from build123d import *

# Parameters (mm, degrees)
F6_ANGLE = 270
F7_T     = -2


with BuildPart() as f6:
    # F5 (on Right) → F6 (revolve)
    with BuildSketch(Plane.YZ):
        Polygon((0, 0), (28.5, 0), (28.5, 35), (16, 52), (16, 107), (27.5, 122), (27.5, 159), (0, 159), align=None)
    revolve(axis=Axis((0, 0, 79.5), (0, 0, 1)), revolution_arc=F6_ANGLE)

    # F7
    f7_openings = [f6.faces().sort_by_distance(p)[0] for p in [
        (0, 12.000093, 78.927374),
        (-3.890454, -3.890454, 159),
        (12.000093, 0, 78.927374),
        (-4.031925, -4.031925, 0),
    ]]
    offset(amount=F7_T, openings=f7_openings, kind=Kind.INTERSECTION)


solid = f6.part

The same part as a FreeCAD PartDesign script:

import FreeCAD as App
import Part
import Sketcher

V = App.Vector
Q = App.Units.Quantity


def faces_at(feature, points):
    """Names of the faces that lie closest to the given points."""
    faces = feature.Shape.Faces
    near = lambda p: min(range(len(faces)), key=lambda i: faces[i].distToShape(Part.Vertex(*p))[0])
    return sorted({f"Face{near(p) + 1}" for p in points})

doc = App.newDocument("Part")
body = doc.addObject("PartDesign::Body", "Body")

# Sketch on YZ plane
sketch1 = body.newObject("Sketcher::SketchObject", "Sketch")
sketch1.AttachmentSupport = (doc.getObject("YZ_Plane"), [""])
sketch1.MapMode = "FlatFace"
sketch1.addGeometry(Part.LineSegment(V(0, 0, 0), V(28.5, 0, 0)), False)
sketch1.addGeometry(Part.LineSegment(V(28.5, 0, 0), V(28.5, 35, 0)), False)
sketch1.addGeometry(Part.LineSegment(V(28.5, 35, 0), V(16, 52, 0)), False)
sketch1.addGeometry(Part.LineSegment(V(16, 52, 0), V(16, 107, 0)), False)
sketch1.addGeometry(Part.LineSegment(V(16, 107, 0), V(27.5, 122, 0)), False)
sketch1.addGeometry(Part.LineSegment(V(27.5, 122, 0), V(27.5, 159, 0)), False)
sketch1.addGeometry(Part.LineSegment(V(27.5, 159, 0), V(0, 159, 0)), False)
sketch1.addGeometry(Part.LineSegment(V(0, 159, 0), V(0, 0, 0)), False)
sketch1.addConstraint(Sketcher.Constraint("Coincident", 0, 2, 1, 1))
sketch1.addConstraint(Sketcher.Constraint("Coincident", 1, 2, 2, 1))
sketch1.addConstraint(Sketcher.Constraint("Coincident", 2, 2, 3, 1))
sketch1.addConstraint(Sketcher.Constraint("Coincident", 3, 2, 4, 1))
sketch1.addConstraint(Sketcher.Constraint("Coincident", 4, 2, 5, 1))
sketch1.addConstraint(Sketcher.Constraint("Coincident", 5, 2, 6, 1))
sketch1.addConstraint(Sketcher.Constraint("Coincident", 6, 2, 7, 1))
sketch1.addConstraint(Sketcher.Constraint("Coincident", 7, 2, 0, 1))
sketch1.addConstraint(Sketcher.Constraint("Horizontal", 0))
sketch1.addConstraint(Sketcher.Constraint("Vertical", 1))
sketch1.addConstraint(Sketcher.Constraint("Vertical", 3))
sketch1.addConstraint(Sketcher.Constraint("Vertical", 5))
sketch1.addConstraint(Sketcher.Constraint("Horizontal", 6))
sketch1.addConstraint(Sketcher.Constraint("Vertical", 7))
sketch1.addConstraint(Sketcher.Constraint("Coincident", 7, 2, -1, 1))
sketch1.addConstraint(Sketcher.Constraint("DistanceY", 1, 1, 1, 2, Q("35 mm")))
sketch1.addConstraint(Sketcher.Constraint("DistanceY", 3, 1, 3, 2, Q("55 mm")))
sketch1.addConstraint(Sketcher.Constraint("DistanceY", 5, 1, 5, 2, Q("37 mm")))
sketch1.addConstraint(Sketcher.Constraint("DistanceY", 7, 2, 7, 1, Q("159 mm")))
sketch1.addConstraint(Sketcher.Constraint("DistanceX", 0, 1, 0, 2, Q("28.5 mm")))
sketch1.addConstraint(Sketcher.Constraint("DistanceX", 6, 2, 6, 1, Q("27.5 mm")))
sketch1.addConstraint(Sketcher.Constraint("DistanceX", -1, 1, 2, 2, Q("16 mm")))
sketch1.addConstraint(Sketcher.Constraint("DistanceY", -1, 1, 2, 2, Q("52 mm")))
revolution = body.newObject("PartDesign::Revolution", "Revolution")
revolution.Profile = sketch1
revolution.ReferenceAxis = (sketch1, ["V_Axis"])
revolution.Angle = 270
doc.recompute()

thickness = body.newObject("PartDesign::Thickness", "Thickness")
thickness.Base = (revolution, faces_at(revolution, [
    (0, 14.25, 79.5),
    (0, 0, 159),
    (14.25, 0, 79.5),
    (0, 0, 0),
]))
thickness.Value = 2
thickness.Reversed = True
thickness.Join = "Intersection"

doc.recompute()
